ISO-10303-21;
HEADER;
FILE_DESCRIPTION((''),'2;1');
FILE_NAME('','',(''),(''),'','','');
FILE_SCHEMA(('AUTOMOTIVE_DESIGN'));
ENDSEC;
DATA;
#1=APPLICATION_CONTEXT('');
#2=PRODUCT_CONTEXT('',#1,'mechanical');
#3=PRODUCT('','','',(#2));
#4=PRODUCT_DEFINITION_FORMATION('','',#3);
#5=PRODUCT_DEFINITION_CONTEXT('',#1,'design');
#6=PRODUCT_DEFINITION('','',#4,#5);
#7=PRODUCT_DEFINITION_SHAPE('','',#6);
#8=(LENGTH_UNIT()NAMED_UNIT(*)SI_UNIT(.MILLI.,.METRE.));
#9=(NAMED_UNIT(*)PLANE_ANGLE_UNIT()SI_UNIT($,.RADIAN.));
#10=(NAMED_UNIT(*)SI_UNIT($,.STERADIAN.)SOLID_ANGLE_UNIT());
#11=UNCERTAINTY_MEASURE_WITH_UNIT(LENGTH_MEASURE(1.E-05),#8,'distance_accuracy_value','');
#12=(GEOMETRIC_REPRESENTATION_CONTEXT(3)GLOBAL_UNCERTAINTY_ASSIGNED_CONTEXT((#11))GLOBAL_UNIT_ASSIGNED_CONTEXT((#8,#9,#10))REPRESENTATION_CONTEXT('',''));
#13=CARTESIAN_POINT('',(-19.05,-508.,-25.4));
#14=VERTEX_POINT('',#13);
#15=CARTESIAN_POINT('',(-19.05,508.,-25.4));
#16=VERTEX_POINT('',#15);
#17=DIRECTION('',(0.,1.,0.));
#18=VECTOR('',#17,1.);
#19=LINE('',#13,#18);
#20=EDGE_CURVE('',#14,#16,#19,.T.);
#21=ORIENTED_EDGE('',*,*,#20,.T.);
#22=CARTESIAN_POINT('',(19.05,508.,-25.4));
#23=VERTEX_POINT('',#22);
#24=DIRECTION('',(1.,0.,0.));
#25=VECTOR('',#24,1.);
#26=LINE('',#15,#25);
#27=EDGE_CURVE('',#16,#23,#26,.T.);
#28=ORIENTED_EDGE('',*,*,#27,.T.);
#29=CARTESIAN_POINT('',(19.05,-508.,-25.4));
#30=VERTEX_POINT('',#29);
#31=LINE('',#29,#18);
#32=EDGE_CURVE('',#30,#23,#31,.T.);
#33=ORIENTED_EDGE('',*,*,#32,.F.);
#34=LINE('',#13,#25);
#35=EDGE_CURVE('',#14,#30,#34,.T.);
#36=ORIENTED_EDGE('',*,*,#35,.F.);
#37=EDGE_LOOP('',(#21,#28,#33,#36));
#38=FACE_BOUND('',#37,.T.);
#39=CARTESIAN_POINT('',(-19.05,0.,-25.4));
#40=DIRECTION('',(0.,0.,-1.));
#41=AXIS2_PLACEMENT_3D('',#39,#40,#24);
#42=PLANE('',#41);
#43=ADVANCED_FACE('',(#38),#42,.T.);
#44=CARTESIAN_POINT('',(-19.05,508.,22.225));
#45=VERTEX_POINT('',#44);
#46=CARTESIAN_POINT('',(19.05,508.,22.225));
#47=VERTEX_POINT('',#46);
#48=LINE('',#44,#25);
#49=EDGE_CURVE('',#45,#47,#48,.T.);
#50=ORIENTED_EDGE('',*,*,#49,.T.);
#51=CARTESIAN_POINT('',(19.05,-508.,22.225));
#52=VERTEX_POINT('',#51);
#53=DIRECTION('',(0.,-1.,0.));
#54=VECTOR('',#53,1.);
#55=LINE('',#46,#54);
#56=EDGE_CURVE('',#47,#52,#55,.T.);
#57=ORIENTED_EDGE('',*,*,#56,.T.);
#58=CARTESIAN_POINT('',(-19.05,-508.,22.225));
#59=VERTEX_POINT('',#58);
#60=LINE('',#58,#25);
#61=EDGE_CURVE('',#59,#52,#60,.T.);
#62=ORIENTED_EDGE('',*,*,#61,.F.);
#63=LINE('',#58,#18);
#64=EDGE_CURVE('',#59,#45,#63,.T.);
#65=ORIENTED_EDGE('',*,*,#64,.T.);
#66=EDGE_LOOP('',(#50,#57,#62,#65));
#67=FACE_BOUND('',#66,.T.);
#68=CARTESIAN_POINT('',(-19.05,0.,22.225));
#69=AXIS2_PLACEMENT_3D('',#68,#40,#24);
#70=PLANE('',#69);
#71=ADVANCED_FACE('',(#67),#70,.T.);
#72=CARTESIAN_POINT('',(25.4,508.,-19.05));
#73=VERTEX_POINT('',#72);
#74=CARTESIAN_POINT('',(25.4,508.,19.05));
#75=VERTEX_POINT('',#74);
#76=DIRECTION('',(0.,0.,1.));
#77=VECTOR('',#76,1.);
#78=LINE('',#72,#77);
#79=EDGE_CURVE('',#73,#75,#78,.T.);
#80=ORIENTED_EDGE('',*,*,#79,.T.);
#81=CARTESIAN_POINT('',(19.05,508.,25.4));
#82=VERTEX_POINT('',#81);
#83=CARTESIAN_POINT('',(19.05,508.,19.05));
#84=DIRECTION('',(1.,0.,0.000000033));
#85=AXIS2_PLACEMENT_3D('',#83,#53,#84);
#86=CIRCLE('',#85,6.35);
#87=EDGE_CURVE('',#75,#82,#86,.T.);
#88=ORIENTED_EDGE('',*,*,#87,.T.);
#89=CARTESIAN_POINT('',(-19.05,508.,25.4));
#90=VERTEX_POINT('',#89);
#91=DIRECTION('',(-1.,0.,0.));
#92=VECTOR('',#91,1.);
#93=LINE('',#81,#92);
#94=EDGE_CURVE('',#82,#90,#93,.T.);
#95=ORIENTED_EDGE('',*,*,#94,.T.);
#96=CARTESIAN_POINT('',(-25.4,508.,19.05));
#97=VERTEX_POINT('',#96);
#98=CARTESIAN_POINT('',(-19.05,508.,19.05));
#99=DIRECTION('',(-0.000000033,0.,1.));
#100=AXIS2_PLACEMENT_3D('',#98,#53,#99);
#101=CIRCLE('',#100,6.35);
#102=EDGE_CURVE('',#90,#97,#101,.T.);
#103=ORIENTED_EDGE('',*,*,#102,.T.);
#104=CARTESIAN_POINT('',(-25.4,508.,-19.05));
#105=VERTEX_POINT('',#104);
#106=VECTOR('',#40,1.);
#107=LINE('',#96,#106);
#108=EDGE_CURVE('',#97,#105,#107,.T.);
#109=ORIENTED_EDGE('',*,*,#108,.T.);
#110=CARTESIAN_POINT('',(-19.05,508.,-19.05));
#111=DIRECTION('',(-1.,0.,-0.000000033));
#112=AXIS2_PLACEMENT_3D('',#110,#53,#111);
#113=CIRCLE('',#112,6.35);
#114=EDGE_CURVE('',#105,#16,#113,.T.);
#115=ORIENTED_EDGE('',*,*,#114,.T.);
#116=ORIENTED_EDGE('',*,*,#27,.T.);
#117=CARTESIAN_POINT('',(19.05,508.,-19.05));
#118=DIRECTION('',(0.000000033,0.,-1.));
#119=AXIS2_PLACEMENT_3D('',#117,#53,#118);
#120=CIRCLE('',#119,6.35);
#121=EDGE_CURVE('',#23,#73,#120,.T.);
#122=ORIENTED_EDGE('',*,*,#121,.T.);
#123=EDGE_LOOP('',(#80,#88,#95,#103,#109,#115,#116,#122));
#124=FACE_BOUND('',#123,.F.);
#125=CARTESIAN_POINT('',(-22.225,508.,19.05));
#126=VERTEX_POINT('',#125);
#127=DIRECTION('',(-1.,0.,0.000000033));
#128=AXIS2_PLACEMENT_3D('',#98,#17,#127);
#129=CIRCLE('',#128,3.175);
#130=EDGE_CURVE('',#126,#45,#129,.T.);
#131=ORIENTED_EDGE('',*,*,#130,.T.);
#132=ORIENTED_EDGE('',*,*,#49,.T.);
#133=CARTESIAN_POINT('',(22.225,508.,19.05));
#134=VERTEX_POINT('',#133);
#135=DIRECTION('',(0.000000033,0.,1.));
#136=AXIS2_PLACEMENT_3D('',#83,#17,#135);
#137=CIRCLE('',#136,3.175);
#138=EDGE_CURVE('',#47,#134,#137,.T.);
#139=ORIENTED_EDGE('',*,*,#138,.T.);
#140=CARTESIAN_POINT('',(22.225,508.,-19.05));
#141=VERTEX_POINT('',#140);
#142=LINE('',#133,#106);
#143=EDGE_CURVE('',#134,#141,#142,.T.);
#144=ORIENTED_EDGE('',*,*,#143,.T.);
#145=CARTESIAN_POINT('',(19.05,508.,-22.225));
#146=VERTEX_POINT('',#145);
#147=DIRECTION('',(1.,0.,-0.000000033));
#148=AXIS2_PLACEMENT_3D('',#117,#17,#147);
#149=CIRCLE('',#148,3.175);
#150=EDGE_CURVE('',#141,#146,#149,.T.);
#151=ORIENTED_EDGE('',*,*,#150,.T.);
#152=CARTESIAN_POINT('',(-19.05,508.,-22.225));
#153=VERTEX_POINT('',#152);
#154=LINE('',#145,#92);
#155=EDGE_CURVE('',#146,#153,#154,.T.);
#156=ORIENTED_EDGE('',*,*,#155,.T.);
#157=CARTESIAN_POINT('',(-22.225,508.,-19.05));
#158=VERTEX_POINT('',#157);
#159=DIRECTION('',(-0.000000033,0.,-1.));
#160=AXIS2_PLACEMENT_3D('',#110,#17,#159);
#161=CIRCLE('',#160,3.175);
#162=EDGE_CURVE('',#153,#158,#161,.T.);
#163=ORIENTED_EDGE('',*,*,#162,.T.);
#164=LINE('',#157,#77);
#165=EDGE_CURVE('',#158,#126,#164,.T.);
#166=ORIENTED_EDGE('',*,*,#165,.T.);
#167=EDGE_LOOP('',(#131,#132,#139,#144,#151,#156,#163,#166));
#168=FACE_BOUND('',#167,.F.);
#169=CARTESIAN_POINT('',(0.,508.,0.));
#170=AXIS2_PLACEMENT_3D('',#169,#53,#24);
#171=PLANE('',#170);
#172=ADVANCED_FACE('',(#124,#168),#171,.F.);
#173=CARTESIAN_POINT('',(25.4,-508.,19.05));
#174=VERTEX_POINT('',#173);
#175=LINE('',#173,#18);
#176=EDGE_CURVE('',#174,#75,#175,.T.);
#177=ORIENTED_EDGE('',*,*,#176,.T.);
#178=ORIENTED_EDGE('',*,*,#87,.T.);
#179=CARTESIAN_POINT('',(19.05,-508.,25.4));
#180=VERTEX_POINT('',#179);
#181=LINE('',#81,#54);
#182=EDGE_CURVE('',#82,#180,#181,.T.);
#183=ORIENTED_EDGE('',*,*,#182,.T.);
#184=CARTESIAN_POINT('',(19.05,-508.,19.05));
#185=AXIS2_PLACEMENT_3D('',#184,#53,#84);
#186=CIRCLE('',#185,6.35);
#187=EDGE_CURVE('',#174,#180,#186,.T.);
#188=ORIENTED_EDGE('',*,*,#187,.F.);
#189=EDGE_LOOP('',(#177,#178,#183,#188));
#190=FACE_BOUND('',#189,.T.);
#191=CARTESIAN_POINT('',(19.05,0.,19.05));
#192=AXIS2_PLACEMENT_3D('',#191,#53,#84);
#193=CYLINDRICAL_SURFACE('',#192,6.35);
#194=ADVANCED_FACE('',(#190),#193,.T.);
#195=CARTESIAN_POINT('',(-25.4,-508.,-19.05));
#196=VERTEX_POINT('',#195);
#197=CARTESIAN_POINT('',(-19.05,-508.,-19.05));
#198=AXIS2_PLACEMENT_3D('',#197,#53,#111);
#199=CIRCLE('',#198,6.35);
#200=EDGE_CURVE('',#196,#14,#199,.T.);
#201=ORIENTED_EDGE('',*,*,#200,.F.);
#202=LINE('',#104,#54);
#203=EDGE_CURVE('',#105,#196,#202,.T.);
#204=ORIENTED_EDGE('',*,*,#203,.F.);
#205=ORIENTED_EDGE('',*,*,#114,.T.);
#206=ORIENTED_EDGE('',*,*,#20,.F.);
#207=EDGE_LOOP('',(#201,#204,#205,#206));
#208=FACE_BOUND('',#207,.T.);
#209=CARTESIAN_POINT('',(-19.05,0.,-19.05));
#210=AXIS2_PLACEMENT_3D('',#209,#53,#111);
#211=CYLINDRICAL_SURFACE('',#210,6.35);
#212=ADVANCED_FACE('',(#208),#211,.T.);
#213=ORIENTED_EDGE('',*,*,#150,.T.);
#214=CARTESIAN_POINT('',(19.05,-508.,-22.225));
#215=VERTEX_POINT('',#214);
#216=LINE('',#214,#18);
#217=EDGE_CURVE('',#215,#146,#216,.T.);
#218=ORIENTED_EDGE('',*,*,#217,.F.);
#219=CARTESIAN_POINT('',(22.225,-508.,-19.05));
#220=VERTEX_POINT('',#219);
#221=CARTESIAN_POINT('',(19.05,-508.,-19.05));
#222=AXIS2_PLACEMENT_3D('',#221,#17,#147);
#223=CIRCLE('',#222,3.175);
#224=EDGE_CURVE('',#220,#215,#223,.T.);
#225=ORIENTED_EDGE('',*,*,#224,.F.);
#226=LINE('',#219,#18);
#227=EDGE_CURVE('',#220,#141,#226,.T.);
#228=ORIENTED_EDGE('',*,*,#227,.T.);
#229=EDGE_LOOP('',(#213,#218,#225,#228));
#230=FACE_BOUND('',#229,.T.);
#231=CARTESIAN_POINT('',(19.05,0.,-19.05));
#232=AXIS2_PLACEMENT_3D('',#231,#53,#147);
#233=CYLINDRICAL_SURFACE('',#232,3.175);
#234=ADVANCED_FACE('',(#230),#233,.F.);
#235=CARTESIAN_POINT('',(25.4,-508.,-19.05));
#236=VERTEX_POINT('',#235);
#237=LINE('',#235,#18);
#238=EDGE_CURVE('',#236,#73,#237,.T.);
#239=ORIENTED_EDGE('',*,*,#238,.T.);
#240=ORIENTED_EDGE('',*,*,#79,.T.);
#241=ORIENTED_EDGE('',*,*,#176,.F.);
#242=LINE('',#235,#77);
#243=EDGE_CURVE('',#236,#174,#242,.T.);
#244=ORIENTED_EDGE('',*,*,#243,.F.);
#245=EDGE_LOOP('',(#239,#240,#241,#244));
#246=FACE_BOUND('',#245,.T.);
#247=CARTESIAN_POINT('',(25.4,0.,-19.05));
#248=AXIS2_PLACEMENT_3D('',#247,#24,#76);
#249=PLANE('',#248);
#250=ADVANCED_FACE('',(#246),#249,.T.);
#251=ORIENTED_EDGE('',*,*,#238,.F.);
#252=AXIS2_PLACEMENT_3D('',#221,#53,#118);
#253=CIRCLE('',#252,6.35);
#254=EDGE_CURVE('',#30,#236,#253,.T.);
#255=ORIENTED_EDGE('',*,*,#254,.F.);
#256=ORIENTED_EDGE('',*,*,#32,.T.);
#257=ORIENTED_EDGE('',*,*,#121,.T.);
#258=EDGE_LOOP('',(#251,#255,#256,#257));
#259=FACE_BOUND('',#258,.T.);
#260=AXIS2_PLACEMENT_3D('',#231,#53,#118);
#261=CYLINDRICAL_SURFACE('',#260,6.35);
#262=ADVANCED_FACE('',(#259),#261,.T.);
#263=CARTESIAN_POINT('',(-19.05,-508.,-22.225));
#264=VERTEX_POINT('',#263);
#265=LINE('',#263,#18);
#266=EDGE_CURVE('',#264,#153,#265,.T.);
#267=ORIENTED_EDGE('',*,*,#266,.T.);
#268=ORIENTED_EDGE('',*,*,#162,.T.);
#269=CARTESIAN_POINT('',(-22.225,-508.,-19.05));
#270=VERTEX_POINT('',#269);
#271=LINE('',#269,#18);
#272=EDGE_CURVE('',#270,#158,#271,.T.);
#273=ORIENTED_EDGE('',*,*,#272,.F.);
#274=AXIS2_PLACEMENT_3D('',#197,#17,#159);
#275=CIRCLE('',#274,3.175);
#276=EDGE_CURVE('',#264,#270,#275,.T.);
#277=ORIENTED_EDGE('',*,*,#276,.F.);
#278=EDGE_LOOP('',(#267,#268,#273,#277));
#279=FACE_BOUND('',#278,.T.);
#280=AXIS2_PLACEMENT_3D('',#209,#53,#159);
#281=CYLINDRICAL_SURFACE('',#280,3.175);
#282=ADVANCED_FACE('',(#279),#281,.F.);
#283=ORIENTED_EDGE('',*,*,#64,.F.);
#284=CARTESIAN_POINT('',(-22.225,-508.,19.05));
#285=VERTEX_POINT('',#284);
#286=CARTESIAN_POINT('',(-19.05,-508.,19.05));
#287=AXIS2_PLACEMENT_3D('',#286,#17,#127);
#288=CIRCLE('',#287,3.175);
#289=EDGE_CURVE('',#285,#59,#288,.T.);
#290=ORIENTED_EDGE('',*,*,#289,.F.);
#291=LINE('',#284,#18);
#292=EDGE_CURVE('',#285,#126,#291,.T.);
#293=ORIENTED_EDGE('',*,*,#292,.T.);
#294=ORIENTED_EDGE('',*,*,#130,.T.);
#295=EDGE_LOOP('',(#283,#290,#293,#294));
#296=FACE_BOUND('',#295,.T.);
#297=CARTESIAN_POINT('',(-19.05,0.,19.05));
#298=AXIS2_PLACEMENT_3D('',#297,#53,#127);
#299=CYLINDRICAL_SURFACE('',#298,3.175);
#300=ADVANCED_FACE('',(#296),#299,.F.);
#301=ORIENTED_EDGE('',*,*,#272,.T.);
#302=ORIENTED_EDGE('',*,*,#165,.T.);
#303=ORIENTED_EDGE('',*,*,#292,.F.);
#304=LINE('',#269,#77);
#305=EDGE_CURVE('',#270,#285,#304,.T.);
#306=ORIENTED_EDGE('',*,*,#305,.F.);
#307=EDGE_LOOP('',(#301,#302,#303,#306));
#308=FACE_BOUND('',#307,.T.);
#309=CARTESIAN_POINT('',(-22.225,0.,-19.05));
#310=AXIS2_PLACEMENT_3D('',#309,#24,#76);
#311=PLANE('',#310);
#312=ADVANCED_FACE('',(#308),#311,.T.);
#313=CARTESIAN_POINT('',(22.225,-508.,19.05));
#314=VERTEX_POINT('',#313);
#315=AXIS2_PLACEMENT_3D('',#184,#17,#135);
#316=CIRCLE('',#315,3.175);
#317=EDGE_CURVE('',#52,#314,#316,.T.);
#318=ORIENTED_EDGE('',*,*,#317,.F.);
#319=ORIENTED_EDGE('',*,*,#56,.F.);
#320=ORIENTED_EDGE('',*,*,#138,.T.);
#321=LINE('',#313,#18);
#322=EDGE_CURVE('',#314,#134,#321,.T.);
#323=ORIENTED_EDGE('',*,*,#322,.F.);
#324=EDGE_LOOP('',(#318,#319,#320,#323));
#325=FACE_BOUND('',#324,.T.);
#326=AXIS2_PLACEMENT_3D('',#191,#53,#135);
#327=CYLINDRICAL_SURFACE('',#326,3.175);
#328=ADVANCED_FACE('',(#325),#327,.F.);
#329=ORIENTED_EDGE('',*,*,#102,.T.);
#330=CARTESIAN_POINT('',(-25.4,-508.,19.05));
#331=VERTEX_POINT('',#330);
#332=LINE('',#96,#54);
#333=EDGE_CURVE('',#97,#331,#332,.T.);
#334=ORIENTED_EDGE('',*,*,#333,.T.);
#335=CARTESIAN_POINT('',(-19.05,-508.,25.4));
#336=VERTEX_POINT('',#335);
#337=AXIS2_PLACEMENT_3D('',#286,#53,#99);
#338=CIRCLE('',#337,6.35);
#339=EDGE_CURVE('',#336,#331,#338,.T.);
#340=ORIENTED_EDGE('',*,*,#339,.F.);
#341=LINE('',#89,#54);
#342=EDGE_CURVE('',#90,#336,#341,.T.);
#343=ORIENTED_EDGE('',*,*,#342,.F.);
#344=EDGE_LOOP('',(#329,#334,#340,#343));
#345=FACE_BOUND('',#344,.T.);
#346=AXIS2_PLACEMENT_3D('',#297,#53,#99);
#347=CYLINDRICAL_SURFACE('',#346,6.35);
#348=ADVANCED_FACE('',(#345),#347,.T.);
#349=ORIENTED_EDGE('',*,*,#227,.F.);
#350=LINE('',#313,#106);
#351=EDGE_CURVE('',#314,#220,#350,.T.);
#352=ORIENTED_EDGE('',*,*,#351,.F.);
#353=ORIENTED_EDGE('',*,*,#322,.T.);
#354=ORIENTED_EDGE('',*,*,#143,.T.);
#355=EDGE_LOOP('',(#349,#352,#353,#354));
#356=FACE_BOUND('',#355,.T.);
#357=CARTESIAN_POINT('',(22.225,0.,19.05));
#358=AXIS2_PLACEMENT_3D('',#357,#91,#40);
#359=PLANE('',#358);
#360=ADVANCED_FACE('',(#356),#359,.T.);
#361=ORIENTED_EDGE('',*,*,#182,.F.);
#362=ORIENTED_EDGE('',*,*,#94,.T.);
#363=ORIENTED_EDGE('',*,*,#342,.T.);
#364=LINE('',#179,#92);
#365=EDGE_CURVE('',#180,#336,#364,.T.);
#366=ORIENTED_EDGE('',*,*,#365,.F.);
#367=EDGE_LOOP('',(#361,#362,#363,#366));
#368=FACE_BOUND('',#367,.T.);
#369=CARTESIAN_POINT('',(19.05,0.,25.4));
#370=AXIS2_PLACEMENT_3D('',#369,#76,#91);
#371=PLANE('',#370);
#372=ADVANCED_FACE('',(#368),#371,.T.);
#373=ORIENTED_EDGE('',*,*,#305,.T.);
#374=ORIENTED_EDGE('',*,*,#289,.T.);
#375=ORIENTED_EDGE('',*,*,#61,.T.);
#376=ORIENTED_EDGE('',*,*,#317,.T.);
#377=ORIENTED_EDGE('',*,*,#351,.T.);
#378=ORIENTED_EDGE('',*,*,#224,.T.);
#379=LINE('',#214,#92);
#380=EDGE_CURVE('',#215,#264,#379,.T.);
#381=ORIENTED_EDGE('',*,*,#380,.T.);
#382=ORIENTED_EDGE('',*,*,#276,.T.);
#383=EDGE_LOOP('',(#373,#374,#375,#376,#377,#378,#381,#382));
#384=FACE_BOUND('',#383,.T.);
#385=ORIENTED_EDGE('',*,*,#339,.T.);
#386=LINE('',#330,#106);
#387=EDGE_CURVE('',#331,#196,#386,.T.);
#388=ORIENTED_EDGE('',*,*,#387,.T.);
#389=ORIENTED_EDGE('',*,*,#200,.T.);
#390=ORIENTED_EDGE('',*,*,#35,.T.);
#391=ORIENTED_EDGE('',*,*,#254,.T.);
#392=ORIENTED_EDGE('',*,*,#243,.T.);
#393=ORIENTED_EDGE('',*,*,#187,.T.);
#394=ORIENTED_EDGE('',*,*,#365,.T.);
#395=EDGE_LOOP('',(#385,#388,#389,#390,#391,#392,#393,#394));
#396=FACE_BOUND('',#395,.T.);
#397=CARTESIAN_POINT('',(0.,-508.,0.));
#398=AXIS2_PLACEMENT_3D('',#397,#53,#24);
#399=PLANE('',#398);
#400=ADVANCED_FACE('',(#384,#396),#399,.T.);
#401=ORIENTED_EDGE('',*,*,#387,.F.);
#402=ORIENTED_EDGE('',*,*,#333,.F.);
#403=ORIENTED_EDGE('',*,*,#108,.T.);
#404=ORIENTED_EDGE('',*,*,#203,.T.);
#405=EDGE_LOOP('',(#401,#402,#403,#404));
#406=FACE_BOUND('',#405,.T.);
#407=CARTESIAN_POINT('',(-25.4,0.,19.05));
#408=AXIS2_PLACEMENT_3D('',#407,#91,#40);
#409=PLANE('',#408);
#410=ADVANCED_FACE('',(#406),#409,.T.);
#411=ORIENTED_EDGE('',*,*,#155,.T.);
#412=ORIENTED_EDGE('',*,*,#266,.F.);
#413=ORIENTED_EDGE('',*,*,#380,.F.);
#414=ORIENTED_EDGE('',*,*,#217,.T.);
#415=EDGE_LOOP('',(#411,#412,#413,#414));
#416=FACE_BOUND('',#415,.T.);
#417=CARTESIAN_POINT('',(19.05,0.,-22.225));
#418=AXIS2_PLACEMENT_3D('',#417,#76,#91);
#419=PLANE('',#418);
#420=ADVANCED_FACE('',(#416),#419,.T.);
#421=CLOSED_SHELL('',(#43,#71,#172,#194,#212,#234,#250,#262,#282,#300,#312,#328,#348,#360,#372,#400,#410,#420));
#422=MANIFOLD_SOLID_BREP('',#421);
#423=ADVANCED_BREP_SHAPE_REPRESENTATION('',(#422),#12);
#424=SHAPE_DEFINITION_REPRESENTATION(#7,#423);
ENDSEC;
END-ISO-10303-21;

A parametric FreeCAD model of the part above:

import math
import FreeCAD as App
import Part
import Sketcher
Q = App.Units.Quantity

doc = App.newDocument("Part")
body = doc.addObject("PartDesign::Body", "Body")

# Sketch on XZ plane
sketch1 = body.newObject("Sketcher::SketchObject", "Sketch")
sketch1.AttachmentSupport = (doc.getObject("XZ_Plane"), [""])
sketch1.MapMode = "FlatFace"
sketch1.addGeometry([
    Part.ArcOfCircle(Part.Circle(App.Vector(19.05, 19.05, 0), App.Vector(0, 0, 1), 6.35), math.radians(0.000002), math.radians(89.999998)),  # 0
    Part.LineSegment(App.Vector(19.05, 25.4, 0), App.Vector(-19.05, 25.4, 0)),  # 1
    Part.ArcOfCircle(Part.Circle(App.Vector(-19.05, 19.05, 0), App.Vector(0, 0, 1), 6.35), math.radians(90.000002), math.radians(179.999998)),  # 2
    Part.LineSegment(App.Vector(-25.4, 19.05, 0), App.Vector(-25.4, -19.05, 0)),  # 3
    Part.ArcOfCircle(Part.Circle(App.Vector(-19.05, -19.05, 0), App.Vector(0, 0, 1), 6.35), math.radians(-179.999998), math.radians(-90.000002)),  # 4
    Part.LineSegment(App.Vector(-19.05, -25.4, 0), App.Vector(19.05, -25.4, 0)),  # 5
    Part.ArcOfCircle(Part.Circle(App.Vector(19.05, -19.05, 0), App.Vector(0, 0, 1), 6.35), math.radians(-89.999998), math.radians(-0.000002)),  # 6
    Part.LineSegment(App.Vector(25.4, -19.05, 0), App.Vector(25.4, 19.05, 0)),  # 7
    Part.LineSegment(App.Vector(-19.05, 22.225, 0), App.Vector(19.05, 22.225, 0)),  # 8
    Part.ArcOfCircle(Part.Circle(App.Vector(19.05, 19.05, 0), App.Vector(0, 0, 1), 3.175), math.radians(0.000002), math.radians(89.999998)),  # 9
    Part.LineSegment(App.Vector(22.225, 19.05, 0), App.Vector(22.225, -19.05, 0)),  # 10
    Part.ArcOfCircle(Part.Circle(App.Vector(19.05, -19.05, 0), App.Vector(0, 0, 1), 3.175), math.radians(-89.999998), math.radians(-0.000002)),  # 11
    Part.LineSegment(App.Vector(19.05, -22.225, 0), App.Vector(-19.05, -22.225, 0)),  # 12
    Part.ArcOfCircle(Part.Circle(App.Vector(-19.05, -19.05, 0), App.Vector(0, 0, 1), 3.175), math.radians(-179.999998), math.radians(-90.000002)),  # 13
    Part.LineSegment(App.Vector(-22.225, -19.05, 0), App.Vector(-22.225, 19.05, 0)),  # 14
    Part.ArcOfCircle(Part.Circle(App.Vector(-19.05, 19.05, 0), App.Vector(0, 0, 1), 3.175), math.radians(90.000002), math.radians(179.999998)),  # 15
], False)
sketch1.addConstraint([
    Sketcher.Constraint("Tangent", 0, 2, 1, 1),
    Sketcher.Constraint("Tangent", 1, 2, 2, 1),
    Sketcher.Constraint("Tangent", 2, 2, 3, 1),
    Sketcher.Constraint("Tangent", 3, 2, 4, 1),
    Sketcher.Constraint("Tangent", 4, 2, 5, 1),
    Sketcher.Constraint("Tangent", 5, 2, 6, 1),
    Sketcher.Constraint("Tangent", 6, 2, 7, 1),
    Sketcher.Constraint("Tangent", 7, 2, 0, 1),
    Sketcher.Constraint("Tangent", 8, 2, 9, 2),
    Sketcher.Constraint("Tangent", 9, 1, 10, 1),
    Sketcher.Constraint("Tangent", 10, 2, 11, 2),
    Sketcher.Constraint("Tangent", 11, 1, 12, 1),
    Sketcher.Constraint("Tangent", 12, 2, 13, 2),
    Sketcher.Constraint("Tangent", 13, 1, 14, 1),
    Sketcher.Constraint("Tangent", 14, 2, 15, 2),
    Sketcher.Constraint("Tangent", 15, 1, 8, 1),
    Sketcher.Constraint("Horizontal", 1),
    Sketcher.Constraint("Vertical", 3),
    Sketcher.Constraint("Horizontal", 5),
    Sketcher.Constraint("Vertical", 7),
    Sketcher.Constraint("Horizontal", 8),
    Sketcher.Constraint("Vertical", 10),
    Sketcher.Constraint("Horizontal", 12),
    Sketcher.Constraint("Vertical", 14),
    Sketcher.Constraint("Coincident", 9, 3, 0, 3),
    Sketcher.Constraint("Coincident", 11, 3, 6, 3),
    Sketcher.Constraint("Coincident", 13, 3, 4, 3),
    Sketcher.Constraint("Equal", 0, 2),
    Sketcher.Constraint("Equal", 2, 4),
    Sketcher.Constraint("Equal", 4, 6),
    Sketcher.Constraint("Equal", 13, 15),
    Sketcher.Constraint("Symmetric", 0, 3, 4, 3, -1, 1),
    Sketcher.Constraint("Equal", 12, 3),
    Sketcher.Constraint("Radius", 0, Q("0.25 in")),
    Sketcher.Constraint("DistanceX", 1, 2, 1, 1, Q("1.5 in")),
    Sketcher.Constraint("Radius", 9, Q("0.125 in")),
])
pad1 = body.newObject("PartDesign::Pad", "Pad")
pad1.Profile = sketch1
pad1.Length = Q("40 in")
pad1.Midplane = True

doc.recompute()
